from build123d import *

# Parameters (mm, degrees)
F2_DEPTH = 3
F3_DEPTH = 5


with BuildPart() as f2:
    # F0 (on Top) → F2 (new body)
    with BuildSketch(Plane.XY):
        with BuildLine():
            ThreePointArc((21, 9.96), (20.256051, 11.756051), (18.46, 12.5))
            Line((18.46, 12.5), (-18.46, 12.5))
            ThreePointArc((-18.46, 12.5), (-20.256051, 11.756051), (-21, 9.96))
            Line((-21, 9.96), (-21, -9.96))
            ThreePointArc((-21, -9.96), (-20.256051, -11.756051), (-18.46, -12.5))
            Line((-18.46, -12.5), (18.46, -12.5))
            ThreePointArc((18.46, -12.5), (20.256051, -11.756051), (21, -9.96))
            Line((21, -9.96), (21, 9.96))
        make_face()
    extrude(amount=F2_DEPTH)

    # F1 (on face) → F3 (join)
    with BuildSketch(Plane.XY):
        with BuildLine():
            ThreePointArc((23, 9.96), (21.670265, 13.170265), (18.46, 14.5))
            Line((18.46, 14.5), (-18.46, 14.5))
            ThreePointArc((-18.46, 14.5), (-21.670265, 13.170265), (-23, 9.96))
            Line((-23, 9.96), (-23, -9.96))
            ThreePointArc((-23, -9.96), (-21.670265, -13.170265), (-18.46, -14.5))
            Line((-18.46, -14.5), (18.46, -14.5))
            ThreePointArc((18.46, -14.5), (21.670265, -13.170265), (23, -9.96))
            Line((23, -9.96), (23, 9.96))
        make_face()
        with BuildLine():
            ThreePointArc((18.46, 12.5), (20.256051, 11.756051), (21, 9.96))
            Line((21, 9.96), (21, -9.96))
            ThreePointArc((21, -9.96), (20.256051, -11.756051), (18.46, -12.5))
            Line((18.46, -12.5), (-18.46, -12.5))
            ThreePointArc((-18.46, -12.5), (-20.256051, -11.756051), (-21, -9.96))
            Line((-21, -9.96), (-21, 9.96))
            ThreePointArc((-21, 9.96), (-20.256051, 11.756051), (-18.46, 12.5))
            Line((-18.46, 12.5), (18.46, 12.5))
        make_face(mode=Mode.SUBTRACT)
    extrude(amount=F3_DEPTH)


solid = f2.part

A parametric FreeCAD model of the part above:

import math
import FreeCAD as App
import Part
import Sketcher
from FreeCAD import Vector
Q = App.Units.Quantity

doc = App.newDocument("Part")
body = doc.addObject("PartDesign::Body", "Body")

# Sketch on XY plane
sketch1 = body.newObject("Sketcher::SketchObject", "Sketch")
sketch1.AttachmentSupport = (doc.getObject("XY_Plane"), [""])
sketch1.MapMode = "FlatFace"
sketch1.addGeometry(Part.ArcOfCircle(Part.Circle(Vector(18.459999, 9.959999, 0), Vector(0, 0, 1), 2.540001), math.radians(0.000017), math.radians(89.999983)), False)
sketch1.addGeometry(Part.LineSegment(Vector(18.46, 12.5, 0), Vector(-18.46, 12.5, 0)), False)
sketch1.addGeometry(Part.ArcOfCircle(Part.Circle(Vector(-18.459999, 9.959999, 0), Vector(0, 0, 1), 2.540001), math.radians(90.000017), math.radians(179.999983)), False)
sketch1.addGeometry(Part.LineSegment(Vector(-21, 9.96, 0), Vector(-21, -9.96, 0)), False)
sketch1.addGeometry(Part.ArcOfCircle(Part.Circle(Vector(-18.459999, -9.959999, 0), Vector(0, 0, 1), 2.540001), math.radians(-179.999983), math.radians(-90.000017)), False)
sketch1.addGeometry(Part.LineSegment(Vector(-18.46, -12.5, 0), Vector(18.46, -12.5, 0)), False)
sketch1.addGeometry(Part.ArcOfCircle(Part.Circle(Vector(18.459999, -9.959999, 0), Vector(0, 0, 1), 2.540001), math.radians(-89.999983), math.radians(-0.000017)), False)
sketch1.addGeometry(Part.LineSegment(Vector(21, -9.96, 0), Vector(21, 9.96, 0)), False)
sketch1.addConstraint(Sketcher.Constraint("Tangent", 0, 2, 1, 1))
sketch1.addConstraint(Sketcher.Constraint("Tangent", 1, 2, 2, 1))
sketch1.addConstraint(Sketcher.Constraint("Tangent", 2, 2, 3, 1))
sketch1.addConstraint(Sketcher.Constraint("Tangent", 3, 2, 4, 1))
sketch1.addConstraint(Sketcher.Constraint("Tangent", 4, 2, 5, 1))
sketch1.addConstraint(Sketcher.Constraint("Tangent", 5, 2, 6, 1))
sketch1.addConstraint(Sketcher.Constraint("Tangent", 6, 2, 7, 1))
sketch1.addConstraint(Sketcher.Constraint("Tangent", 7, 2, 0, 1))
sketch1.addConstraint(Sketcher.Constraint("Horizontal", 1))
sketch1.addConstraint(Sketcher.Constraint("Vertical", 3))
sketch1.addConstraint(Sketcher.Constraint("Horizontal", 5))
sketch1.addConstraint(Sketcher.Constraint("Vertical", 7))
sketch1.addConstraint(Sketcher.Constraint("Equal", 0, 2))
sketch1.addConstraint(Sketcher.Constraint("Equal", 2, 4))
sketch1.addConstraint(Sketcher.Constraint("Equal", 4, 6))
sketch1.addConstraint(Sketcher.Constraint("Symmetric", 0, 3, 4, 3, -1, 1))
sketch1.addConstraint(Sketcher.Constraint("Radius", 0, Q("2.540001 mm")))
sketch1.addConstraint(Sketcher.Constraint("DistanceX", 2, 2, -1, 1, Q("21 mm")))
sketch1.addConstraint(Sketcher.Constraint("DistanceY", 4, 2, 1, 2, Q("25 mm")))
pad1 = body.newObject("PartDesign::Pad", "Pad")
pad1.Profile = sketch1
pad1.Length = 3

# Sketch on XY plane
sketch2 = body.newObject("Sketcher::SketchObject", "Sketch001")
sketch2.AttachmentSupport = (doc.getObject("XY_Plane"), [""])
sketch2.MapMode = "FlatFace"
sketch2.addGeometry(Part.ArcOfCircle(Part.Circle(Vector(18.460001, 9.960001, 0), Vector(0, 0, 1), 4.539999), math.radians(-0.000009), math.radians(90.000009)), False)
sketch2.addGeometry(Part.LineSegment(Vector(18.46, 14.5, 0), Vector(-18.46, 14.5, 0)), False)
sketch2.addGeometry(Part.ArcOfCircle(Part.Circle(Vector(-18.460001, 9.960001, 0), Vector(0, 0, 1), 4.539999), math.radians(89.999991), math.radians(180.000009)), False)
sketch2.addGeometry(Part.LineSegment(Vector(-23, 9.96, 0), Vector(-23, -9.96, 0)), False)
sketch2.addGeometry(Part.ArcOfCircle(Part.Circle(Vector(-18.460001, -9.960001, 0), Vector(0, 0, 1), 4.539999), math.radians(179.999991), math.radians(270.000009)), False)
sketch2.addGeometry(Part.LineSegment(Vector(-18.46, -14.5, 0), Vector(18.46, -14.5, 0)), False)
sketch2.addGeometry(Part.ArcOfCircle(Part.Circle(Vector(18.460001, -9.960001, 0), Vector(0, 0, 1), 4.539999), math.radians(-90.000009), math.radians(0.000009)), False)
sketch2.addGeometry(Part.LineSegment(Vector(23, -9.96, 0), Vector(23, 9.96, 0)), False)
sketch2.addGeometry(Part.LineSegment(Vector(-18.46, 12.5, 0), Vector(18.46, 12.5, 0)), False)
sketch2.addGeometry(Part.ArcOfCircle(Part.Circle(Vector(18.459999, 9.959999, 0), Vector(0, 0, 1), 2.540001), math.radians(0.000017), math.radians(89.999983)), False)
sketch2.addGeometry(Part.LineSegment(Vector(21, 9.96, 0), Vector(21, -9.96, 0)), False)
sketch2.addGeometry(Part.ArcOfCircle(Part.Circle(Vector(18.459999, -9.959999, 0), Vector(0, 0, 1), 2.540001), math.radians(-89.999983), math.radians(-0.000017)), False)
sketch2.addGeometry(Part.LineSegment(Vector(18.46, -12.5, 0), Vector(-18.46, -12.5, 0)), False)
sketch2.addGeometry(Part.ArcOfCircle(Part.Circle(Vector(-18.459999, -9.959999, 0), Vector(0, 0, 1), 2.540001), math.radians(-179.999983), math.radians(-90.000017)), False)
sketch2.addGeometry(Part.LineSegment(Vector(-21, -9.96, 0), Vector(-21, 9.96, 0)), False)
sketch2.addGeometry(Part.ArcOfCircle(Part.Circle(Vector(-18.459999, 9.959999, 0), Vector(0, 0, 1), 2.540001), math.radians(90.000017), math.radians(179.999983)), False)
sketch2.addConstraint(Sketcher.Constraint("Tangent", 0, 2, 1, 1))
sketch2.addConstraint(Sketcher.Constraint("Tangent", 1, 2, 2, 1))
sketch2.addConstraint(Sketcher.Constraint("Tangent", 2, 2, 3, 1))
sketch2.addConstraint(Sketcher.Constraint("Tangent", 3, 2, 4, 1))
sketch2.addConstraint(Sketcher.Constraint("Tangent", 4, 2, 5, 1))
sketch2.addConstraint(Sketcher.Constraint("Tangent", 5, 2, 6, 1))
sketch2.addConstraint(Sketcher.Constraint("Tangent", 6, 2, 7, 1))
sketch2.addConstraint(Sketcher.Constraint("Tangent", 7, 2, 0, 1))
sketch2.addConstraint(Sketcher.Constraint("Tangent", 8, 2, 9, 2))
sketch2.addConstraint(Sketcher.Constraint("Tangent", 9, 1, 10, 1))
sketch2.addConstraint(Sketcher.Constraint("Tangent", 10, 2, 11, 2))
sketch2.addConstraint(Sketcher.Constraint("Tangent", 11, 1, 12, 1))
sketch2.addConstraint(Sketcher.Constraint("Tangent", 12, 2, 13, 2))
sketch2.addConstraint(Sketcher.Constraint("Tangent", 13, 1, 14, 1))
sketch2.addConstraint(Sketcher.Constraint("Tangent", 14, 2, 15, 2))
sketch2.addConstraint(Sketcher.Constraint("Tangent", 15, 1, 8, 1))
sketch2.addConstraint(Sketcher.Constraint("Horizontal", 1))
sketch2.addConstraint(Sketcher.Constraint("Vertical", 3))
sketch2.addConstraint(Sketcher.Constraint("Horizontal", 5))
sketch2.addConstraint(Sketcher.Constraint("Vertical", 7))
sketch2.addConstraint(Sketcher.Constraint("Horizontal", 8))
sketch2.addConstraint(Sketcher.Constraint("Vertical", 10))
sketch2.addConstraint(Sketcher.Constraint("Horizontal", 12))
sketch2.addConstraint(Sketcher.Constraint("Vertical", 14))
sketch2.addConstraint(Sketcher.Constraint("Coincident", 9, 3, 0, 3))
sketch2.addConstraint(Sketcher.Constraint("Coincident", 11, 3, 6, 3))
sketch2.addConstraint(Sketcher.Constraint("Coincident", 13, 3, 4, 3))
sketch2.addConstraint(Sketcher.Constraint("Equal", 0, 2))
sketch2.addConstraint(Sketcher.Constraint("Equal", 2, 4))
sketch2.addConstraint(Sketcher.Constraint("Equal", 4, 6))
sketch2.addConstraint(Sketcher.Constraint("Equal", 13, 15))
sketch2.addConstraint(Sketcher.Constraint("Symmetric", 0, 3, 4, 3, -1, 1))
sketch2.addConstraint(Sketcher.Constraint("Radius", 0, Q("4.539999 mm")))
sketch2.addConstraint(Sketcher.Constraint("Radius", 9, Q("2.540001 mm")))
sketch2.addConstraint(Sketcher.Constraint("DistanceX", 2, 2, -1, 1, Q("23 mm")))
sketch2.addConstraint(Sketcher.Constraint("DistanceY", 5, 2, 0, 2, Q("29 mm")))
pad2 = body.newObject("PartDesign::Pad", "Pad001")
pad2.Profile = sketch2
pad2.Length = 5

doc.recompute()
